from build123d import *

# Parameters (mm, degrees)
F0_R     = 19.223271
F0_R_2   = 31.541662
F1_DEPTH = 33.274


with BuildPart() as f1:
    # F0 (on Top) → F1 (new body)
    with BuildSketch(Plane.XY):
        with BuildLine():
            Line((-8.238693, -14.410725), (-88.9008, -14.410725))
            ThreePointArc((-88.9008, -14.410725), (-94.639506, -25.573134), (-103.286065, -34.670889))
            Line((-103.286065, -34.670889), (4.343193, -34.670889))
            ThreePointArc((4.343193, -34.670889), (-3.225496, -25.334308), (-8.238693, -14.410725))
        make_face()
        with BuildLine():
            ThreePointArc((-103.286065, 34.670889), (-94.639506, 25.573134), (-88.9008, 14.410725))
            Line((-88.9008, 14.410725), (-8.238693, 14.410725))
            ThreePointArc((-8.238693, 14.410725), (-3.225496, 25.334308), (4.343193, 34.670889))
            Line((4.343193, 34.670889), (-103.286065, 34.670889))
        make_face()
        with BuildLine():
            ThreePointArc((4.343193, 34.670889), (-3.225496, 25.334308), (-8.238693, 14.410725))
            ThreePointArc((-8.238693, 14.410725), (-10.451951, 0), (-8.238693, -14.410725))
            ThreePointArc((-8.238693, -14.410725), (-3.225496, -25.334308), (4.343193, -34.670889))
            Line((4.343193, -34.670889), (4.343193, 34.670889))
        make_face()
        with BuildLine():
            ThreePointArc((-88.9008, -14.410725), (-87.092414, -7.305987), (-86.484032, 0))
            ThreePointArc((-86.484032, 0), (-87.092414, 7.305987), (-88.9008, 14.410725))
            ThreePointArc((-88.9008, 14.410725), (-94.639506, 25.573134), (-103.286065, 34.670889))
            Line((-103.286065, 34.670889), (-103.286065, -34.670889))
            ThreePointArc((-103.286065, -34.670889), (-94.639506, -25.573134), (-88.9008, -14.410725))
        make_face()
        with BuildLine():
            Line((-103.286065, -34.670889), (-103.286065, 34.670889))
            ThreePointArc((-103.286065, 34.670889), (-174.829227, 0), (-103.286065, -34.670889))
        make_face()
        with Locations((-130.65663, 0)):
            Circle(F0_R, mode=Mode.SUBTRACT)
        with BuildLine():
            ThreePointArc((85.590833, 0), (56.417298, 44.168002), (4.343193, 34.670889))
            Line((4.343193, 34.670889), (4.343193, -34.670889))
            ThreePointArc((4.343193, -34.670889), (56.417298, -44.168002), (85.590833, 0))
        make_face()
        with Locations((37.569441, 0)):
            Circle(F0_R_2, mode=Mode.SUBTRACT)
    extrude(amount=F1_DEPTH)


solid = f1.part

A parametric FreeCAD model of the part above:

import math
import FreeCAD as App
import Part
import Sketcher
Q = App.Units.Quantity

doc = App.newDocument("Part")
body = doc.addObject("PartDesign::Body", "Body")

sketch1 = doc.addObject("Sketcher::SketchObject", "Sketch")
body.addObject(sketch1)
sketch1.AttachmentSupport = (doc.XY_Plane, [""])
sketch1.MapMode = "FlatFace"
sketch1.addGeometry(Part.LineSegment(App.Vector(-103.286065, -34.670889, 0), App.Vector(4.343193, -34.670889, 0)), False)
sketch1.addGeometry(Part.ArcOfCircle(Part.Circle(App.Vector(37.569441, 0, 0), App.Vector(0, 0, 1), 48.021392), math.radians(-133.781107), math.radians(0)), False)
sketch1.addGeometry(Part.ArcOfCircle(Part.Circle(App.Vector(37.569441, 0, 0), App.Vector(0, 0, 1), 48.021392), math.radians(0), math.radians(133.781107)), False)
sketch1.addGeometry(Part.LineSegment(App.Vector(4.343193, 34.670889, 0), App.Vector(-103.286065, 34.670889, 0)), False)
sketch1.addGeometry(Part.ArcOfCircle(Part.Circle(App.Vector(-130.65663, 0, 0), App.Vector(0, 0, 1), 44.172597), math.radians(51.711048), math.radians(308.288952)), False)
sketch1.addGeometry(Part.Circle(App.Vector(-130.65663, 0, 0), App.Vector(0, 0, 1), 19.223271), False)
sketch1.addGeometry(Part.LineSegment(App.Vector(-8.238693, -14.410725, 0), App.Vector(-88.9008, -14.410725, 0)), False)
sketch1.addGeometry(Part.ArcOfCircle(Part.Circle(App.Vector(-130.65664, 0.000004, 0), App.Vector(0, 0, 1), 44.172608), math.radians(-19.040522), math.radians(-0.000006)), False)
sketch1.addGeometry(Part.ArcOfCircle(Part.Circle(App.Vector(-130.65664, -0.000004, 0), App.Vector(0, 0, 1), 44.172608), math.radians(0.000006), math.radians(19.040522)), False)
sketch1.addGeometry(Part.LineSegment(App.Vector(-88.9008, 14.410725, 0), App.Vector(-8.238693, 14.410725, 0)), False)
sketch1.addGeometry(Part.ArcOfCircle(Part.Circle(App.Vector(37.569451, 0, 0), App.Vector(0, 0, 1), 48.021402), math.radians(162.537013), math.radians(197.462987)), False)
sketch1.addGeometry(Part.Circle(App.Vector(37.569441, 0, 0), App.Vector(0, 0, 1), 31.541662), False)
sketch1.addConstraint(Sketcher.Constraint("Coincident", 0, 2, 1, 1))
sketch1.addConstraint(Sketcher.Constraint("Tangent", 1, 2, 2, 1))
sketch1.addConstraint(Sketcher.Constraint("Coincident", 2, 2, 3, 1))
sketch1.addConstraint(Sketcher.Constraint("Coincident", 3, 2, 4, 1))
sketch1.addConstraint(Sketcher.Constraint("Coincident", 4, 2, 0, 1))
sketch1.addConstraint(Sketcher.Constraint("Coincident", 6, 2, 7, 1))
sketch1.addConstraint(Sketcher.Constraint("Tangent", 7, 2, 8, 1))
sketch1.addConstraint(Sketcher.Constraint("Coincident", 8, 2, 9, 1))
sketch1.addConstraint(Sketcher.Constraint("Coincident", 9, 2, 10, 1))
sketch1.addConstraint(Sketcher.Constraint("Coincident", 10, 2, 6, 1))
sketch1.addConstraint(Sketcher.Constraint("Horizontal", 0))
sketch1.addConstraint(Sketcher.Constraint("Horizontal", 3))
sketch1.addConstraint(Sketcher.Constraint("Horizontal", 6))
sketch1.addConstraint(Sketcher.Constraint("Horizontal", 9))
sketch1.addConstraint(Sketcher.Constraint("Coincident", 5, 3, 4, 3))
sketch1.addConstraint(Sketcher.Constraint("Coincident", 11, 3, 1, 3))
sketch1.addConstraint(Sketcher.Constraint("Equal", 1, 2))
sketch1.addConstraint(Sketcher.Constraint("Equal", 7, 8))
sketch1.addConstraint(Sketcher.Constraint("Symmetric", 0, 2, 2, 2, -1))
sketch1.addConstraint(Sketcher.Constraint("Symmetric", 6, 2, 8, 2, -1))
sketch1.addConstraint(Sketcher.Constraint("PointOnObject", 4, 3, -1))
sketch1.addConstraint(Sketcher.Constraint("PointOnObject", 10, 3, -1))
sketch1.addConstraint(Sketcher.Constraint("PointOnObject", 1, 2, -1))
sketch1.addConstraint(Sketcher.Constraint("PointOnObject", 7, 2, -1))
sketch1.addConstraint(Sketcher.Constraint("Radius", 1, Q("48.021392 mm")))
sketch1.addConstraint(Sketcher.Constraint("Diameter", 5, Q("38.446542 mm")))
sketch1.addConstraint(Sketcher.Constraint("Diameter", 11, Q("63.083324 mm")))
sketch1.addConstraint(Sketcher.Constraint("Radius", 4, Q("44.172597 mm")))
sketch1.addConstraint(Sketcher.Constraint("Radius", 7, Q("44.172608 mm")))
sketch1.addConstraint(Sketcher.Constraint("Radius", 10, Q("48.021402 mm")))
sketch1.addConstraint(Sketcher.Constraint("DistanceX", 6, 2, -1, 1, Q("88.9008 mm")))
sketch1.addConstraint(Sketcher.Constraint("DistanceX", 0, 1, 0, 2, Q("107.629258 mm")))
sketch1.addConstraint(Sketcher.Constraint("DistanceX", 6, 2, 6, 1, Q("80.662107 mm")))
sketch1.addConstraint(Sketcher.Constraint("DistanceX", -1, 1, 1, 3, Q("37.569441 mm")))
sketch1.addConstraint(Sketcher.Constraint("DistanceX", 4, 3, -1, 1, Q("130.65663 mm")))
sketch1.addConstraint(Sketcher.Constraint("DistanceX", 7, 3, -1, 1, Q("130.65664 mm")))
pad1 = doc.addObject("PartDesign::Pad", "Pad")
body.addObject(pad1)
pad1.Profile = sketch1
pad1.Length = Q("1.31 in")

doc.recompute()
